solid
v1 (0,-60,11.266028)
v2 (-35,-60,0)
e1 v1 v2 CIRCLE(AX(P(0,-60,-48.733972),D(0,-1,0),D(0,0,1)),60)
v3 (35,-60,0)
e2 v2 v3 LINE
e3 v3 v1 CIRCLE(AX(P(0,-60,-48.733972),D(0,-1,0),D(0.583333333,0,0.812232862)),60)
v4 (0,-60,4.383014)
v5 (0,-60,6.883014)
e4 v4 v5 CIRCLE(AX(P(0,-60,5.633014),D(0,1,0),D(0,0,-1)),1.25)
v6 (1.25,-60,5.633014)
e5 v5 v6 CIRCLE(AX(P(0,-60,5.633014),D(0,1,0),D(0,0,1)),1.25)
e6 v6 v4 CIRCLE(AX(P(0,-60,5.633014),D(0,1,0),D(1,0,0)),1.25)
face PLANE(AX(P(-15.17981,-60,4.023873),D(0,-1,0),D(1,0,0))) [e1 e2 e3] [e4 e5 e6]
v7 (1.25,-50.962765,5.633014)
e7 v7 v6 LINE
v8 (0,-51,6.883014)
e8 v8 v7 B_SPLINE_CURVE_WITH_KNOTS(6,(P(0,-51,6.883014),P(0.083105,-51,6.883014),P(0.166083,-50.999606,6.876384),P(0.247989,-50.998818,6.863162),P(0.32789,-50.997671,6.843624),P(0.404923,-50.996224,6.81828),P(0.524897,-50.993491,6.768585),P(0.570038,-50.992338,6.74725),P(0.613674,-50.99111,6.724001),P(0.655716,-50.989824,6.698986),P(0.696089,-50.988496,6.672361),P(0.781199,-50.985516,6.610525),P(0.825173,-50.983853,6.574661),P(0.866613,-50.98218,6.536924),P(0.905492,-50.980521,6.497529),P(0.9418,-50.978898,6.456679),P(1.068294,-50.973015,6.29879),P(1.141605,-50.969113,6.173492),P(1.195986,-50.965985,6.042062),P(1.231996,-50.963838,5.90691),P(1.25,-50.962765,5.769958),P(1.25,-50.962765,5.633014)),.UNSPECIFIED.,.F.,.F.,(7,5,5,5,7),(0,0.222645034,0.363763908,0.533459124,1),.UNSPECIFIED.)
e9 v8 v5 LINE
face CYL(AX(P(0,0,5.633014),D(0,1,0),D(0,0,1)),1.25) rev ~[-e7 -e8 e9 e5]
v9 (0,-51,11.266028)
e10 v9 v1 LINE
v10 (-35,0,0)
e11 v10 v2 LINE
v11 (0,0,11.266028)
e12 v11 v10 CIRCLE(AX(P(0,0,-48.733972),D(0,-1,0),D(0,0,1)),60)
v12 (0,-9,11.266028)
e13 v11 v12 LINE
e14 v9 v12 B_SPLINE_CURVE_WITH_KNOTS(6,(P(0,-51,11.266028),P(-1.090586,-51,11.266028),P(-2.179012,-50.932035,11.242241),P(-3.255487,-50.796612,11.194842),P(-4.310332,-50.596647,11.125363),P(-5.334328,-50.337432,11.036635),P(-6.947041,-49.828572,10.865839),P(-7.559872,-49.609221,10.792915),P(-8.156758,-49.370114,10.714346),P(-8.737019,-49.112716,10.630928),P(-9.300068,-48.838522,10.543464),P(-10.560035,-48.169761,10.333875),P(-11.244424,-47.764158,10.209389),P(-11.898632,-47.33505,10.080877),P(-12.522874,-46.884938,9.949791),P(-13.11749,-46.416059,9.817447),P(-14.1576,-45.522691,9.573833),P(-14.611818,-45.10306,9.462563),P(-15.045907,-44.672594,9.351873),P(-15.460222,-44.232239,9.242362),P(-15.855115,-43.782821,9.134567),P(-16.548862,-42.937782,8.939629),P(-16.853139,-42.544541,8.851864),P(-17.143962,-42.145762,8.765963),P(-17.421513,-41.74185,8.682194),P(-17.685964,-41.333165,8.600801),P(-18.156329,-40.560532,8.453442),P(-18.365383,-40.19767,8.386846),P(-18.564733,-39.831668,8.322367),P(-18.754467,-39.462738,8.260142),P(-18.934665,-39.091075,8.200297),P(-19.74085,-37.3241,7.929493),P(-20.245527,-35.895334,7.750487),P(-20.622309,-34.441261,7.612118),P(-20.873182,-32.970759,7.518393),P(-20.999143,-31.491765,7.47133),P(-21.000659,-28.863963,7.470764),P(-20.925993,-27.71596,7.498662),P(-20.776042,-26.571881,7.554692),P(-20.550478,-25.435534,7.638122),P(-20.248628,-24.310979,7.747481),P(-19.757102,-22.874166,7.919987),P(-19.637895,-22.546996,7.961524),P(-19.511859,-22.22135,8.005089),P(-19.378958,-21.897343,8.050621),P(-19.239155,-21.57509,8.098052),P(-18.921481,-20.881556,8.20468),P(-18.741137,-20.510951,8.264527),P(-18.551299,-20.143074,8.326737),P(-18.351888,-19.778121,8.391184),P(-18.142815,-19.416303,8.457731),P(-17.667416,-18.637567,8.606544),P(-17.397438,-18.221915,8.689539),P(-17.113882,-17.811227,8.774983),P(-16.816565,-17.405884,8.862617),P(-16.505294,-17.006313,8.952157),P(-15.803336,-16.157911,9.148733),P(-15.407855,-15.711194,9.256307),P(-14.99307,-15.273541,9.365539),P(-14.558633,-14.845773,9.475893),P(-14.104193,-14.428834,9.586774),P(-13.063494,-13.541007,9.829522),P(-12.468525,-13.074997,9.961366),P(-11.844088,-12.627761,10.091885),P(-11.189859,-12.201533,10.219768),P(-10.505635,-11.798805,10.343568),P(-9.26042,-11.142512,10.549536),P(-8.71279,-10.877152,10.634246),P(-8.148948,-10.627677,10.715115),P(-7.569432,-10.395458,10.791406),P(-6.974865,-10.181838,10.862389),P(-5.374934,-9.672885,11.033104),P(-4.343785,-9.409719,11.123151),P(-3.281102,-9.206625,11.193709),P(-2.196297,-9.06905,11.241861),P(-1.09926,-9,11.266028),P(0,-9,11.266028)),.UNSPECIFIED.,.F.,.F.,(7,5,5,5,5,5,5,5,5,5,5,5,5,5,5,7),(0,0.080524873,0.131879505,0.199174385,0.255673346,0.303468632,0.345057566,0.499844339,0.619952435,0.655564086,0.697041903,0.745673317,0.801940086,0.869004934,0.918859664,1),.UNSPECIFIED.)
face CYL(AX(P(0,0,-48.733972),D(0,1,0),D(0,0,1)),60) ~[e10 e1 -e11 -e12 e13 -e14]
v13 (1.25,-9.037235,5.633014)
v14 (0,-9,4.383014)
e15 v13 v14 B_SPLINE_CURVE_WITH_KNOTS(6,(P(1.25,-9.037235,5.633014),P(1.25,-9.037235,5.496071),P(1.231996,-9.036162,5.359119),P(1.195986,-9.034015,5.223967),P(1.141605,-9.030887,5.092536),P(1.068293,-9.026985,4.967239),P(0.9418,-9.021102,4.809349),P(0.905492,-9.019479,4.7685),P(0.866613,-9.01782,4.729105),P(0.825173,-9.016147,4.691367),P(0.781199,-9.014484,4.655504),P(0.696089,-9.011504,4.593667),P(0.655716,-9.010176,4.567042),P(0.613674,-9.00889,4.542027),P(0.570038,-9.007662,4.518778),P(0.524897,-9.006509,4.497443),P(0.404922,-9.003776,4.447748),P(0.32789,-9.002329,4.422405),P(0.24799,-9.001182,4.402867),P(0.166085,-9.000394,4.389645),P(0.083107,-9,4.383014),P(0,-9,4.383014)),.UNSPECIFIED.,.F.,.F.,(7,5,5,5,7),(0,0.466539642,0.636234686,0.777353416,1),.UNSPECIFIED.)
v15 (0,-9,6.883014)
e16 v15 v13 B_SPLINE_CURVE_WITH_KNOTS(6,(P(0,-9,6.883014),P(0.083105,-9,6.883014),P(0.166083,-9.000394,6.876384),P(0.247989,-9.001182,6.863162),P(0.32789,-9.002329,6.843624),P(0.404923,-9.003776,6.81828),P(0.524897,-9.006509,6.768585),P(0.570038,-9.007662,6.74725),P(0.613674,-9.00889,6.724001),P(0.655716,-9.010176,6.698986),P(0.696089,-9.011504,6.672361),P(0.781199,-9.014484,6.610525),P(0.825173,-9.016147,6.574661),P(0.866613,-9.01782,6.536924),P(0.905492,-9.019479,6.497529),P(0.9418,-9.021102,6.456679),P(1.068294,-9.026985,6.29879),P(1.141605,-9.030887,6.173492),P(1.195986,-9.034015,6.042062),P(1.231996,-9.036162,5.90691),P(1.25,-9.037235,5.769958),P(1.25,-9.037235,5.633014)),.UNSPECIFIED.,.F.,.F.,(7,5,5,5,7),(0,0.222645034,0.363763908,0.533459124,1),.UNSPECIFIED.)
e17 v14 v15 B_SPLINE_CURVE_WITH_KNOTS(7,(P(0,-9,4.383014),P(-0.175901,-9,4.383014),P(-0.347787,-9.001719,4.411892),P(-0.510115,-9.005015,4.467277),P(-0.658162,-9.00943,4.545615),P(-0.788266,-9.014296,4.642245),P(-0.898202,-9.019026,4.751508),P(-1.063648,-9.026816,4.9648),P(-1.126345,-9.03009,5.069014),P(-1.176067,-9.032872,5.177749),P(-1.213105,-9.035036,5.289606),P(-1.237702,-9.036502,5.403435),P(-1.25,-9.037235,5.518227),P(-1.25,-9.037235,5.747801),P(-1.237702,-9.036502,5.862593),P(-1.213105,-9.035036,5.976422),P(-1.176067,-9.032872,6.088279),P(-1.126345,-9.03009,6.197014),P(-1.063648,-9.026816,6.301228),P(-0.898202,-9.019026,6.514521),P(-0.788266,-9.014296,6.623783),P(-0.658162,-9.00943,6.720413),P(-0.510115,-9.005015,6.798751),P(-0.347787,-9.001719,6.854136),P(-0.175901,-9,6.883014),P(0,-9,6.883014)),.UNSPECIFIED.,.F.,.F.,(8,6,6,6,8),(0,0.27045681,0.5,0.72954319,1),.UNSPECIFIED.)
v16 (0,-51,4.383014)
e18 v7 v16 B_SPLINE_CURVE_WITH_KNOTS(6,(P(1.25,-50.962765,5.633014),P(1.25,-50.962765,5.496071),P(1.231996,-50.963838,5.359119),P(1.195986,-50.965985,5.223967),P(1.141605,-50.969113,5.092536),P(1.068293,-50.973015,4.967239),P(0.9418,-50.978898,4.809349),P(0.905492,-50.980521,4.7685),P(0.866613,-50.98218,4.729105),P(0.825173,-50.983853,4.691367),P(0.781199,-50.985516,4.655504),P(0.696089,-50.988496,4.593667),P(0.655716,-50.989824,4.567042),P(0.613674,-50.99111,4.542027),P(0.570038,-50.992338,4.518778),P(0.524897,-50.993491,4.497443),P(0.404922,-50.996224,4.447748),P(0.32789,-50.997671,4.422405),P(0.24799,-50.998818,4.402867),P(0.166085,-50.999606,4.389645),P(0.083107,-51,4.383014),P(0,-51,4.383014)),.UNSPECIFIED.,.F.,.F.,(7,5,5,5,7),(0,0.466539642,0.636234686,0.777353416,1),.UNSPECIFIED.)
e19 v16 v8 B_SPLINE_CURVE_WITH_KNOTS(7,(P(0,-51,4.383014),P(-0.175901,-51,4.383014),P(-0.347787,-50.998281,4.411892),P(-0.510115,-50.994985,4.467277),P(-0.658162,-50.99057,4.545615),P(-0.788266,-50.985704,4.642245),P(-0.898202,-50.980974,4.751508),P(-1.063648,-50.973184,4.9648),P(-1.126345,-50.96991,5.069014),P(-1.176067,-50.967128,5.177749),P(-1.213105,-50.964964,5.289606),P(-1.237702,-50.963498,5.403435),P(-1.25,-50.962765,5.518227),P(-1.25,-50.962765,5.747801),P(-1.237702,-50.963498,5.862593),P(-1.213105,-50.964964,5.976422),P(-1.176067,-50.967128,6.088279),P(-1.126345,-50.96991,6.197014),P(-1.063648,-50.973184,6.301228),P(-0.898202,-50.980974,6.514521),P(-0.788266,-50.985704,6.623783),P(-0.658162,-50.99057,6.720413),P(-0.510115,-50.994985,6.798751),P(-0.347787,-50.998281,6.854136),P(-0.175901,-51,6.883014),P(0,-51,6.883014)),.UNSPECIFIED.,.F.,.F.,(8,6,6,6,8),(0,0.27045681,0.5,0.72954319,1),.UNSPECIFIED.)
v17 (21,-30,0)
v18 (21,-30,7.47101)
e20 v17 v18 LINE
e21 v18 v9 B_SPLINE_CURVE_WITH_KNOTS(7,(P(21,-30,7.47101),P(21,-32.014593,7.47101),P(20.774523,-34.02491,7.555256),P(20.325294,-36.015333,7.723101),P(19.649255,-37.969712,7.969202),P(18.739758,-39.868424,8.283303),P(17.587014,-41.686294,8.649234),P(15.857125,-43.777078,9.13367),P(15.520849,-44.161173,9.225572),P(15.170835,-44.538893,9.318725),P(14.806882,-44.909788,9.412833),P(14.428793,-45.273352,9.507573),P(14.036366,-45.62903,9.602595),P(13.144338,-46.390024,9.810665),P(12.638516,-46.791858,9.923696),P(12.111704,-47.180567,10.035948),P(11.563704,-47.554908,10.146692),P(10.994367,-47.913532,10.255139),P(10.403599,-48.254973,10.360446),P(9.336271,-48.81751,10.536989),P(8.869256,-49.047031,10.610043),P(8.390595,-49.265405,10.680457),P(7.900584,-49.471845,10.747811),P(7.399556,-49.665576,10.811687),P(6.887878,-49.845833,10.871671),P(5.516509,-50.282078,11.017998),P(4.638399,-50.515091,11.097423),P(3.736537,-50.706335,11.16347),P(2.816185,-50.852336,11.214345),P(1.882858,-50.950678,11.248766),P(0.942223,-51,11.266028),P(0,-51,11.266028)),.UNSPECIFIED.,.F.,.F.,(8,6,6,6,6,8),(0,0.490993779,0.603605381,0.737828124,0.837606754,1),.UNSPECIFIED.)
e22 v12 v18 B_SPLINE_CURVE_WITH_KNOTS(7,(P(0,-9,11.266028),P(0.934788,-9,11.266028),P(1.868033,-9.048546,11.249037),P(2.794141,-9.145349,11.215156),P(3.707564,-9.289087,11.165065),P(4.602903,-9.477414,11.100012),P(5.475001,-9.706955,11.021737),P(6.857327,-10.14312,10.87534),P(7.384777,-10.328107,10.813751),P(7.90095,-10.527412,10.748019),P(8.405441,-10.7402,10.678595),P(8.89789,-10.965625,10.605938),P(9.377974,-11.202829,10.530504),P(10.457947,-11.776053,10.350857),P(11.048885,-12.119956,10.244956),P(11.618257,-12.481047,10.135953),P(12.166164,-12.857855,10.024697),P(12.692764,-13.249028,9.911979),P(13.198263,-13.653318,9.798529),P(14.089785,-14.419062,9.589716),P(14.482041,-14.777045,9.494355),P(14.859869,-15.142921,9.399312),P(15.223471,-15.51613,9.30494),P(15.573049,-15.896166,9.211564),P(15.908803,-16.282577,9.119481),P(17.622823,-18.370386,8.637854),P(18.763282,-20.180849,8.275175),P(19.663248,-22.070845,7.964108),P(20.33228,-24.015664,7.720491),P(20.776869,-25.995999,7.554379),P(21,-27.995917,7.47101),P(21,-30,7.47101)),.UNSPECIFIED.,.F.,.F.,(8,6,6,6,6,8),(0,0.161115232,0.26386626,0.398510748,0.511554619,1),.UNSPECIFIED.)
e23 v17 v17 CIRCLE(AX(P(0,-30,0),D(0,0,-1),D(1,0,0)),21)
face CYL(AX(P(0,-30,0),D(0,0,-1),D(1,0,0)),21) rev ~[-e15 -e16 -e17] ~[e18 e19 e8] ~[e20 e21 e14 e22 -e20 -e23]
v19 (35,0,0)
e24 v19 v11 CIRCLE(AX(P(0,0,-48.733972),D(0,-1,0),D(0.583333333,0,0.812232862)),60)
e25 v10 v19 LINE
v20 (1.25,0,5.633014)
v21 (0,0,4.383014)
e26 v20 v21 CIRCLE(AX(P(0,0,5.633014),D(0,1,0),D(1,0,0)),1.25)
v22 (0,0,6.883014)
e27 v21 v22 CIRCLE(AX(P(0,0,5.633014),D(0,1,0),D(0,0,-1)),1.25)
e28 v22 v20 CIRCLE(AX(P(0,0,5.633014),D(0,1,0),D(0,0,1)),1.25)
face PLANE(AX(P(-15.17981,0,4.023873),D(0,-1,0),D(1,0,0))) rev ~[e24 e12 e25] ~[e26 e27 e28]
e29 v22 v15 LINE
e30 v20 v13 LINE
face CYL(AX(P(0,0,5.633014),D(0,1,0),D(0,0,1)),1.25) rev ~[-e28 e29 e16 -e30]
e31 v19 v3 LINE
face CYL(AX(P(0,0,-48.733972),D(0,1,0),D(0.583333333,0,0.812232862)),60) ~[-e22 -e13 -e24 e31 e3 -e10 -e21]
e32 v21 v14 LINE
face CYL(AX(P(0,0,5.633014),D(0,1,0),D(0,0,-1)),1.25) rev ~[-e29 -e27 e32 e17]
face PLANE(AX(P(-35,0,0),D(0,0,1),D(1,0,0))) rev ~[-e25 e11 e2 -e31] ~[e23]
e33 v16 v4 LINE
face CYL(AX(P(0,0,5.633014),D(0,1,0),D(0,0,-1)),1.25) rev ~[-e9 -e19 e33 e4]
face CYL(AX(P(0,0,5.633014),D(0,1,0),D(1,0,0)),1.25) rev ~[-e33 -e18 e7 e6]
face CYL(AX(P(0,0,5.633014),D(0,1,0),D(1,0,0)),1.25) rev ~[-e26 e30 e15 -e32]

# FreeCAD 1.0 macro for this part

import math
import FreeCAD as App
import Part
import Sketcher

V = App.Vector
Q = App.Units.Quantity

doc = App.newDocument("Part")
body = doc.addObject("PartDesign::Body", "Body")

sketch1 = body.newObject("Sketcher::SketchObject", "Sketch")
sketch1.AttachmentSupport = (doc.getObject("XZ_Plane"), [""])
sketch1.MapMode = "FlatFace"
sketch1.addGeometry([
    Part.ArcOfCircle(Part.Circle(V(0, -48.733972, 0), V(0, 0, 1), 60), math.radians(90), math.radians(125.685335)),
    Part.LineSegment(V(-35, 0, 0), V(35, 0, 0)),
    Part.ArcOfCircle(Part.Circle(V(0, -48.733972, 0), V(0, 0, 1), 60), math.radians(54.314665), math.radians(90)),
    Part.ArcOfCircle(Part.Circle(V(0, 5.633014, 0), V(0, 0, 1), 1.25), math.radians(90), math.radians(270)),
    Part.ArcOfCircle(Part.Circle(V(0, 5.633014, 0), V(0, 0, 1), 1.25), math.radians(0), math.radians(90)),
    Part.ArcOfCircle(Part.Circle(V(0, 5.633014, 0), V(0, 0, 1), 1.25), math.radians(-90), math.radians(0)),
], False)
sketch1.addConstraint([
    Sketcher.Constraint("Coincident", 0, 2, 1, 1),
    Sketcher.Constraint("Coincident", 1, 2, 2, 1),
    Sketcher.Constraint("Tangent", 2, 2, 0, 1),
    Sketcher.Constraint("Tangent", 3, 1, 4, 2),
    Sketcher.Constraint("Tangent", 4, 1, 5, 2),
    Sketcher.Constraint("Tangent", 5, 1, 3, 2),
    Sketcher.Constraint("Horizontal", 1),
    Sketcher.Constraint("Equal", 0, 2),
    Sketcher.Constraint("Symmetric", 0, 2, 1, 2, -1, 1),
    Sketcher.Constraint("PointOnObject", 3, 3, -2),
    Sketcher.Constraint("PointOnObject", 2, 2, -2),
    Sketcher.Constraint("PointOnObject", 3, 1, -2),
    Sketcher.Constraint("PointOnObject", 5, 1, -2),
    Sketcher.Constraint("Horizontal", 5, 3, 4, 1),
    Sketcher.Constraint("Radius", 0, Q("60 mm")),
    Sketcher.Constraint("DistanceX", 1, 1, 1, 2, Q("70 mm")),
    Sketcher.Constraint("Radius", 3, Q("1.25 mm")),
    Sketcher.Constraint("DistanceY", -1, 1, 3, 3, Q("5.633014 mm")),
])
pad1 = body.newObject("PartDesign::Pad", "Pad")
pad1.Profile = sketch1
pad1.Length = 60

sketch2 = body.newObject("Sketcher::SketchObject", "Sketch001")
sketch2.AttachmentSupport = (doc.getObject("XY_Plane"), [""])
sketch2.MapMode = "FlatFace"
sketch2.addGeometry(Part.Circle(V(0, -30, 0), V(0, 0, 1), 21), False)
sketch2.addConstraint([
    Sketcher.Constraint("PointOnObject", 0, 3, -2),
    Sketcher.Constraint("Diameter", 0, Q("42 mm")),
    Sketcher.Constraint("DistanceY", 0, 3, -1, 1, Q("30 mm")),
])
pocket1 = body.newObject("PartDesign::Pocket", "Pocket")
pocket1.Profile = sketch2
pocket1.Length = 25
pocket1.Reversed = True

doc.recompute()
